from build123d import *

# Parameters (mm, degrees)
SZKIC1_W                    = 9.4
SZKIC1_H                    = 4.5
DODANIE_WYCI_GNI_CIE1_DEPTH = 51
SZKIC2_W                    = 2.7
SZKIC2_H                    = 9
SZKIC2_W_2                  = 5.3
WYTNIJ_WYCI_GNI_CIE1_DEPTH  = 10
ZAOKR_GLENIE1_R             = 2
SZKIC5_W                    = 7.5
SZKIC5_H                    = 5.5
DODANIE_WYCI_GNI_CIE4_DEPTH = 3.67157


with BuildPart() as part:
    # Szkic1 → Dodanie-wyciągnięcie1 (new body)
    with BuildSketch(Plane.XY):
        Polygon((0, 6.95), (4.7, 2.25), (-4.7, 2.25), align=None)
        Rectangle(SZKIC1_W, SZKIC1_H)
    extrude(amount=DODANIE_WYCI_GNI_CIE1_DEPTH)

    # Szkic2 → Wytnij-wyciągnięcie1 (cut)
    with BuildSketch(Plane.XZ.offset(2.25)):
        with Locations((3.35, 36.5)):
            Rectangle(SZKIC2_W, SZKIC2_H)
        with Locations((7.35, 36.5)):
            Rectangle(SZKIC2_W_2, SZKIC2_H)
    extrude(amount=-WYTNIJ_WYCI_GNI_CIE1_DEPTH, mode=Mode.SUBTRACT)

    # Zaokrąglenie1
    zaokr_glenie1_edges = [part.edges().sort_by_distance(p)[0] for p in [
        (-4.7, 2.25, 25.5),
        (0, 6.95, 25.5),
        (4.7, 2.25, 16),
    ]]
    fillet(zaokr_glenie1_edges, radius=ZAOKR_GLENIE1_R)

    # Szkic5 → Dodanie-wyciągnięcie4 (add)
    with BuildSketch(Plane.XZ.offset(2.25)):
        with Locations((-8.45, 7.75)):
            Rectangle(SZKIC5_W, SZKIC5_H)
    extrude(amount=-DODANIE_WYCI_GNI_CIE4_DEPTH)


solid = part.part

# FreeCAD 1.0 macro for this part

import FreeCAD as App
import Part
import Sketcher
Q = App.Units.Quantity


def edges_at(feature, points):
    """Names of the edges that pass closest to the given points."""
    edges = feature.Shape.Edges
    near = lambda p: min(range(len(edges)), key=lambda i: edges[i].distToShape(Part.Vertex(*p))[0])
    return sorted({f"Edge{near(p) + 1}" for p in points})

doc = App.newDocument("Part")
body = doc.addObject("PartDesign::Body", "Body")

sketch1 = body.newObject("Sketcher::SketchObject", "Sketch")
sketch1.AttachmentSupport = (doc.getObject("XY_Plane"), [""])
sketch1.MapMode = "FlatFace"
sketch1.addGeometry(Part.LineSegment(App.Vector(4.7, 2.25, 0), App.Vector(0, 6.95, 0)), False)
sketch1.addGeometry(Part.LineSegment(App.Vector(0, 6.95, 0), App.Vector(-4.7, 2.25, 0)), False)
sketch1.addGeometry(Part.LineSegment(App.Vector(-4.7, 2.25, 0), App.Vector(-4.7, -2.25, 0)), False)
sketch1.addGeometry(Part.LineSegment(App.Vector(-4.7, -2.25, 0), App.Vector(4.7, -2.25, 0)), False)
sketch1.addGeometry(Part.LineSegment(App.Vector(4.7, -2.25, 0), App.Vector(4.7, 2.25, 0)), False)
sketch1.addConstraint(Sketcher.Constraint("Coincident", 0, 2, 1, 1))
sketch1.addConstraint(Sketcher.Constraint("Coincident", 1, 2, 2, 1))
sketch1.addConstraint(Sketcher.Constraint("Coincident", 2, 2, 3, 1))
sketch1.addConstraint(Sketcher.Constraint("Coincident", 3, 2, 4, 1))
sketch1.addConstraint(Sketcher.Constraint("Coincident", 4, 2, 0, 1))
sketch1.addConstraint(Sketcher.Constraint("Vertical", 2))
sketch1.addConstraint(Sketcher.Constraint("Horizontal", 3))
sketch1.addConstraint(Sketcher.Constraint("Vertical", 4))
sketch1.addConstraint(Sketcher.Constraint("Symmetric", 1, 2, 3, 2, -1, 1))
sketch1.addConstraint(Sketcher.Constraint("PointOnObject", 0, 2, -2))
sketch1.addConstraint(Sketcher.Constraint("Perpendicular", 0, 1))
sketch1.addConstraint(Sketcher.Constraint("Horizontal", 1, 2, 4, 2))
sketch1.addConstraint(Sketcher.Constraint("DistanceX", 3, 1, 3, 2, Q("9.4 mm")))
sketch1.addConstraint(Sketcher.Constraint("DistanceY", 2, 2, 2, 1, Q("4.5 mm")))
pad1 = body.newObject("PartDesign::Pad", "Pad")
pad1.Profile = sketch1
pad1.Length = 51

sketch2 = body.newObject("Sketcher::SketchObject", "Sketch001")
sketch2.AttachmentSupport = (doc.getObject("XZ_Plane"), [""])
sketch2.MapMode = "FlatFace"
sketch2.AttachmentOffset = App.Placement(App.Vector(0, 0, 2.25), App.Rotation())
sketch2.addGeometry(Part.LineSegment(App.Vector(2, 41, 0), App.Vector(2, 32, 0)), False)
sketch2.addGeometry(Part.LineSegment(App.Vector(2, 32, 0), App.Vector(10, 32, 0)), False)
sketch2.addGeometry(Part.LineSegment(App.Vector(10, 32, 0), App.Vector(10, 41, 0)), False)
sketch2.addGeometry(Part.LineSegment(App.Vector(10, 41, 0), App.Vector(2, 41, 0)), False)
sketch2.addConstraint(Sketcher.Constraint("Coincident", 0, 2, 1, 1))
sketch2.addConstraint(Sketcher.Constraint("Coincident", 1, 2, 2, 1))
sketch2.addConstraint(Sketcher.Constraint("Coincident", 2, 2, 3, 1))
sketch2.addConstraint(Sketcher.Constraint("Coincident", 3, 2, 0, 1))
sketch2.addConstraint(Sketcher.Constraint("Vertical", 0))
sketch2.addConstraint(Sketcher.Constraint("Horizontal", 1))
sketch2.addConstraint(Sketcher.Constraint("Vertical", 2))
sketch2.addConstraint(Sketcher.Constraint("Horizontal", 3))
sketch2.addConstraint(Sketcher.Constraint("DistanceX", 1, 1, 1, 2, Q("8 mm")))
sketch2.addConstraint(Sketcher.Constraint("DistanceY", 0, 2, 0, 1, Q("9 mm")))
sketch2.addConstraint(Sketcher.Constraint("DistanceX", -1, 1, 0, 2, Q("2 mm")))
sketch2.addConstraint(Sketcher.Constraint("DistanceY", -1, 1, 0, 2, Q("32 mm")))
pocket1 = body.newObject("PartDesign::Pocket", "Pocket")
pocket1.Profile = sketch2
pocket1.Length = 10
doc.recompute()

fillet = body.newObject("PartDesign::Fillet", "Fillet")
fillet.Base = (pocket1, edges_at(pocket1, [(-4.7, 2.25, 25.5), (0, 6.95, 25.5), (4.7, 2.25, 16)]))
fillet.Radius = 2

sketch3 = body.newObject("Sketcher::SketchObject", "Sketch002")
sketch3.AttachmentSupport = (doc.getObject("XZ_Plane"), [""])
sketch3.MapMode = "FlatFace"
sketch3.AttachmentOffset = App.Placement(App.Vector(0, 0, 2.25), App.Rotation())
sketch3.addGeometry(Part.LineSegment(App.Vector(-12.2, 10.5, 0), App.Vector(-12.2, 5, 0)), False)
sketch3.addGeometry(Part.LineSegment(App.Vector(-12.2, 5, 0), App.Vector(-4.7, 5, 0)), False)
sketch3.addGeometry(Part.LineSegment(App.Vector(-4.7, 5, 0), App.Vector(-4.7, 10.5, 0)), False)
sketch3.addGeometry(Part.LineSegment(App.Vector(-4.7, 10.5, 0), App.Vector(-12.2, 10.5, 0)), False)
sketch3.addConstraint(Sketcher.Constraint("Coincident", 0, 2, 1, 1))
sketch3.addConstraint(Sketcher.Constraint("Coincident", 1, 2, 2, 1))
sketch3.addConstraint(Sketcher.Constraint("Coincident", 2, 2, 3, 1))
sketch3.addConstraint(Sketcher.Constraint("Coincident", 3, 2, 0, 1))
sketch3.addConstraint(Sketcher.Constraint("Vertical", 0))
sketch3.addConstraint(Sketcher.Constraint("Horizontal", 1))
sketch3.addConstraint(Sketcher.Constraint("Vertical", 2))
sketch3.addConstraint(Sketcher.Constraint("Horizontal", 3))
sketch3.addConstraint(Sketcher.Constraint("DistanceX", 1, 1, 1, 2, Q("7.5 mm")))
sketch3.addConstraint(Sketcher.Constraint("DistanceY", 0, 2, 0, 1, Q("5.5 mm")))
sketch3.addConstraint(Sketcher.Constraint("DistanceY", -1, 1, 0, 2, Q("5 mm")))
sketch3.addConstraint(Sketcher.Constraint("DistanceX", 0, 2, -1, 1, Q("12.2 mm")))
pad2 = body.newObject("PartDesign::Pad", "Pad001")
pad2.Profile = sketch3
pad2.Length = 3.67157
pad2.Reversed = True

doc.recompute()
